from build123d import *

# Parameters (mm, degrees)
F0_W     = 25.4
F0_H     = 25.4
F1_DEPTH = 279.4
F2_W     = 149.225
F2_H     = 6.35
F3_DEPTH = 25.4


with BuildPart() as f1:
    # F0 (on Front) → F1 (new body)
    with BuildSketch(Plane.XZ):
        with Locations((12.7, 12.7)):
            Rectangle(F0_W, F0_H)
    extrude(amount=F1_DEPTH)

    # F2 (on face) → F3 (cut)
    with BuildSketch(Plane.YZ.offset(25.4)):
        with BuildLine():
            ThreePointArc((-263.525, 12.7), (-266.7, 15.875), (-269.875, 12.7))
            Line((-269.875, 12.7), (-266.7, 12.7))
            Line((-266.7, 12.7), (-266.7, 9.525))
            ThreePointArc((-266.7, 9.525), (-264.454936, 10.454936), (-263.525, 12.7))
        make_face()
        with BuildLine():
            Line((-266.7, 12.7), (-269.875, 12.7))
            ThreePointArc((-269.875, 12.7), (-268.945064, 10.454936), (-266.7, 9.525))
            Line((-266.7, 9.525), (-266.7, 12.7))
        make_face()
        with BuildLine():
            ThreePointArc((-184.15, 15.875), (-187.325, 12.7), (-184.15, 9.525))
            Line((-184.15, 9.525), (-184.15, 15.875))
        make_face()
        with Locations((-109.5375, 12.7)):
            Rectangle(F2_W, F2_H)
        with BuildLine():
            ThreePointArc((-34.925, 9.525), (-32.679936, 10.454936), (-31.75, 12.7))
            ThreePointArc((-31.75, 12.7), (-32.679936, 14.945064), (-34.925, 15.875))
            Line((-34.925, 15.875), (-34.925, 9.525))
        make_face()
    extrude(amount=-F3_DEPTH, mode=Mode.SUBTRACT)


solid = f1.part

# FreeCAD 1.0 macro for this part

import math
import FreeCAD as App
import Part
import Sketcher
Q = App.Units.Quantity

doc = App.newDocument("Part")
body = doc.addObject("PartDesign::Body", "Body")

sketch1 = body.newObject("Sketcher::SketchObject", "Sketch")
sketch1.AttachmentSupport = (doc.getObject("XZ_Plane"), [""])
sketch1.MapMode = "FlatFace"
sketch1.addGeometry(Part.LineSegment(App.Vector(0, 25.4, 0), App.Vector(0, 0, 0)), False)
sketch1.addGeometry(Part.LineSegment(App.Vector(0, 0, 0), App.Vector(25.4, 0, 0)), False)
sketch1.addGeometry(Part.LineSegment(App.Vector(25.4, 0, 0), App.Vector(25.4, 25.4, 0)), False)
sketch1.addGeometry(Part.LineSegment(App.Vector(25.4, 25.4, 0), App.Vector(0, 25.4, 0)), False)
sketch1.addConstraint(Sketcher.Constraint("Coincident", 0, 2, 1, 1))
sketch1.addConstraint(Sketcher.Constraint("Coincident", 1, 2, 2, 1))
sketch1.addConstraint(Sketcher.Constraint("Coincident", 2, 2, 3, 1))
sketch1.addConstraint(Sketcher.Constraint("Coincident", 3, 2, 0, 1))
sketch1.addConstraint(Sketcher.Constraint("Vertical", 0))
sketch1.addConstraint(Sketcher.Constraint("Horizontal", 1))
sketch1.addConstraint(Sketcher.Constraint("Vertical", 2))
sketch1.addConstraint(Sketcher.Constraint("Horizontal", 3))
sketch1.addConstraint(Sketcher.Constraint("Coincident", 0, 2, -1, 1))
sketch1.addConstraint(Sketcher.Constraint("Equal", 3, 0))
sketch1.addConstraint(Sketcher.Constraint("DistanceX", 1, 1, 1, 2, Q("1 in")))
pad1 = body.newObject("PartDesign::Pad", "Pad")
pad1.Profile = sketch1
pad1.Length = Q("11 in")

sketch2 = body.newObject("Sketcher::SketchObject", "Sketch001")
sketch2.AttachmentSupport = (doc.getObject("YZ_Plane"), [""])
sketch2.MapMode = "FlatFace"
sketch2.AttachmentOffset = App.Placement(App.Vector(0, 0, 1 * 25.4), App.Rotation())
sketch2.addGeometry(Part.ArcOfCircle(Part.Circle(App.Vector(-266.7, 12.7, 0), App.Vector(0, 0, 1), 3.175), math.radians(0), math.radians(180)), False)
sketch2.addGeometry(Part.ArcOfCircle(Part.Circle(App.Vector(-266.7, 12.7, 0), App.Vector(0, 0, 1), 3.175), math.radians(-179.999998), math.radians(-90.000002)), False)
sketch2.addGeometry(Part.ArcOfCircle(Part.Circle(App.Vector(-266.7, 12.7, 0), App.Vector(0, 0, 1), 3.175), math.radians(-89.999998), math.radians(-0.000002)), False)
sketch2.addGeometry(Part.ArcOfCircle(Part.Circle(App.Vector(-184.15, 12.7, 0), App.Vector(0, 0, 1), 3.175), math.radians(90), math.radians(270)), False)
sketch2.addGeometry(Part.LineSegment(App.Vector(-184.15, 9.525, 0), App.Vector(-34.925, 9.525, 0)), False)
sketch2.addGeometry(Part.ArcOfCircle(Part.Circle(App.Vector(-34.925, 12.7, 0), App.Vector(0, 0, 1), 3.175), math.radians(-89.999998), math.radians(-0.000002)), False)
sketch2.addGeometry(Part.ArcOfCircle(Part.Circle(App.Vector(-34.925, 12.7, 0), App.Vector(0, 0, 1), 3.175), math.radians(0.000002), math.radians(89.999998)), False)
sketch2.addGeometry(Part.LineSegment(App.Vector(-34.925, 15.875, 0), App.Vector(-184.15, 15.875, 0)), False)
sketch2.addConstraint(Sketcher.Constraint("Tangent", 0, 2, 1, 1))
sketch2.addConstraint(Sketcher.Constraint("Tangent", 1, 2, 2, 1))
sketch2.addConstraint(Sketcher.Constraint("Tangent", 2, 2, 0, 1))
sketch2.addConstraint(Sketcher.Constraint("Tangent", 3, 2, 4, 1))
sketch2.addConstraint(Sketcher.Constraint("Tangent", 4, 2, 5, 1))
sketch2.addConstraint(Sketcher.Constraint("Tangent", 5, 2, 6, 1))
sketch2.addConstraint(Sketcher.Constraint("Tangent", 6, 2, 7, 1))
sketch2.addConstraint(Sketcher.Constraint("Tangent", 7, 2, 3, 1))
sketch2.addConstraint(Sketcher.Constraint("Horizontal", 4))
sketch2.addConstraint(Sketcher.Constraint("Horizontal", 7))
sketch2.addConstraint(Sketcher.Constraint("Equal", 2, 3))
sketch2.addConstraint(Sketcher.Constraint("Equal", 3, 5))
sketch2.addConstraint(Sketcher.Constraint("Horizontal", 2, 3, 3, 3))
sketch2.addConstraint(Sketcher.Constraint("Horizontal", 6, 3, 0, 2))
sketch2.addConstraint(Sketcher.Constraint("Horizontal", 0, 2, 2, 2))
sketch2.addConstraint(Sketcher.Constraint("Horizontal", 2, 2, 5, 2))
sketch2.addConstraint(Sketcher.Constraint("Vertical", 2, 3, 1, 2))
sketch2.addConstraint(Sketcher.Constraint("Radius", 0, Q("0.125 in")))
sketch2.addConstraint(Sketcher.Constraint("DistanceX", 2, 2, 4, 2, Q("9 in")))
sketch2.addConstraint(Sketcher.Constraint("DistanceX", 3, 3, 5, 2, Q("6 in")))
sketch2.addConstraint(Sketcher.Constraint("DistanceX", 0, 3, -1, 1, Q("10.5 in")))
sketch2.addConstraint(Sketcher.Constraint("DistanceY", -1, 1, 0, 3, Q("0.5 in")))
pocket1 = body.newObject("PartDesign::Pocket", "Pocket")
pocket1.Profile = sketch2
pocket1.Length = Q("1 in")

doc.recompute()
